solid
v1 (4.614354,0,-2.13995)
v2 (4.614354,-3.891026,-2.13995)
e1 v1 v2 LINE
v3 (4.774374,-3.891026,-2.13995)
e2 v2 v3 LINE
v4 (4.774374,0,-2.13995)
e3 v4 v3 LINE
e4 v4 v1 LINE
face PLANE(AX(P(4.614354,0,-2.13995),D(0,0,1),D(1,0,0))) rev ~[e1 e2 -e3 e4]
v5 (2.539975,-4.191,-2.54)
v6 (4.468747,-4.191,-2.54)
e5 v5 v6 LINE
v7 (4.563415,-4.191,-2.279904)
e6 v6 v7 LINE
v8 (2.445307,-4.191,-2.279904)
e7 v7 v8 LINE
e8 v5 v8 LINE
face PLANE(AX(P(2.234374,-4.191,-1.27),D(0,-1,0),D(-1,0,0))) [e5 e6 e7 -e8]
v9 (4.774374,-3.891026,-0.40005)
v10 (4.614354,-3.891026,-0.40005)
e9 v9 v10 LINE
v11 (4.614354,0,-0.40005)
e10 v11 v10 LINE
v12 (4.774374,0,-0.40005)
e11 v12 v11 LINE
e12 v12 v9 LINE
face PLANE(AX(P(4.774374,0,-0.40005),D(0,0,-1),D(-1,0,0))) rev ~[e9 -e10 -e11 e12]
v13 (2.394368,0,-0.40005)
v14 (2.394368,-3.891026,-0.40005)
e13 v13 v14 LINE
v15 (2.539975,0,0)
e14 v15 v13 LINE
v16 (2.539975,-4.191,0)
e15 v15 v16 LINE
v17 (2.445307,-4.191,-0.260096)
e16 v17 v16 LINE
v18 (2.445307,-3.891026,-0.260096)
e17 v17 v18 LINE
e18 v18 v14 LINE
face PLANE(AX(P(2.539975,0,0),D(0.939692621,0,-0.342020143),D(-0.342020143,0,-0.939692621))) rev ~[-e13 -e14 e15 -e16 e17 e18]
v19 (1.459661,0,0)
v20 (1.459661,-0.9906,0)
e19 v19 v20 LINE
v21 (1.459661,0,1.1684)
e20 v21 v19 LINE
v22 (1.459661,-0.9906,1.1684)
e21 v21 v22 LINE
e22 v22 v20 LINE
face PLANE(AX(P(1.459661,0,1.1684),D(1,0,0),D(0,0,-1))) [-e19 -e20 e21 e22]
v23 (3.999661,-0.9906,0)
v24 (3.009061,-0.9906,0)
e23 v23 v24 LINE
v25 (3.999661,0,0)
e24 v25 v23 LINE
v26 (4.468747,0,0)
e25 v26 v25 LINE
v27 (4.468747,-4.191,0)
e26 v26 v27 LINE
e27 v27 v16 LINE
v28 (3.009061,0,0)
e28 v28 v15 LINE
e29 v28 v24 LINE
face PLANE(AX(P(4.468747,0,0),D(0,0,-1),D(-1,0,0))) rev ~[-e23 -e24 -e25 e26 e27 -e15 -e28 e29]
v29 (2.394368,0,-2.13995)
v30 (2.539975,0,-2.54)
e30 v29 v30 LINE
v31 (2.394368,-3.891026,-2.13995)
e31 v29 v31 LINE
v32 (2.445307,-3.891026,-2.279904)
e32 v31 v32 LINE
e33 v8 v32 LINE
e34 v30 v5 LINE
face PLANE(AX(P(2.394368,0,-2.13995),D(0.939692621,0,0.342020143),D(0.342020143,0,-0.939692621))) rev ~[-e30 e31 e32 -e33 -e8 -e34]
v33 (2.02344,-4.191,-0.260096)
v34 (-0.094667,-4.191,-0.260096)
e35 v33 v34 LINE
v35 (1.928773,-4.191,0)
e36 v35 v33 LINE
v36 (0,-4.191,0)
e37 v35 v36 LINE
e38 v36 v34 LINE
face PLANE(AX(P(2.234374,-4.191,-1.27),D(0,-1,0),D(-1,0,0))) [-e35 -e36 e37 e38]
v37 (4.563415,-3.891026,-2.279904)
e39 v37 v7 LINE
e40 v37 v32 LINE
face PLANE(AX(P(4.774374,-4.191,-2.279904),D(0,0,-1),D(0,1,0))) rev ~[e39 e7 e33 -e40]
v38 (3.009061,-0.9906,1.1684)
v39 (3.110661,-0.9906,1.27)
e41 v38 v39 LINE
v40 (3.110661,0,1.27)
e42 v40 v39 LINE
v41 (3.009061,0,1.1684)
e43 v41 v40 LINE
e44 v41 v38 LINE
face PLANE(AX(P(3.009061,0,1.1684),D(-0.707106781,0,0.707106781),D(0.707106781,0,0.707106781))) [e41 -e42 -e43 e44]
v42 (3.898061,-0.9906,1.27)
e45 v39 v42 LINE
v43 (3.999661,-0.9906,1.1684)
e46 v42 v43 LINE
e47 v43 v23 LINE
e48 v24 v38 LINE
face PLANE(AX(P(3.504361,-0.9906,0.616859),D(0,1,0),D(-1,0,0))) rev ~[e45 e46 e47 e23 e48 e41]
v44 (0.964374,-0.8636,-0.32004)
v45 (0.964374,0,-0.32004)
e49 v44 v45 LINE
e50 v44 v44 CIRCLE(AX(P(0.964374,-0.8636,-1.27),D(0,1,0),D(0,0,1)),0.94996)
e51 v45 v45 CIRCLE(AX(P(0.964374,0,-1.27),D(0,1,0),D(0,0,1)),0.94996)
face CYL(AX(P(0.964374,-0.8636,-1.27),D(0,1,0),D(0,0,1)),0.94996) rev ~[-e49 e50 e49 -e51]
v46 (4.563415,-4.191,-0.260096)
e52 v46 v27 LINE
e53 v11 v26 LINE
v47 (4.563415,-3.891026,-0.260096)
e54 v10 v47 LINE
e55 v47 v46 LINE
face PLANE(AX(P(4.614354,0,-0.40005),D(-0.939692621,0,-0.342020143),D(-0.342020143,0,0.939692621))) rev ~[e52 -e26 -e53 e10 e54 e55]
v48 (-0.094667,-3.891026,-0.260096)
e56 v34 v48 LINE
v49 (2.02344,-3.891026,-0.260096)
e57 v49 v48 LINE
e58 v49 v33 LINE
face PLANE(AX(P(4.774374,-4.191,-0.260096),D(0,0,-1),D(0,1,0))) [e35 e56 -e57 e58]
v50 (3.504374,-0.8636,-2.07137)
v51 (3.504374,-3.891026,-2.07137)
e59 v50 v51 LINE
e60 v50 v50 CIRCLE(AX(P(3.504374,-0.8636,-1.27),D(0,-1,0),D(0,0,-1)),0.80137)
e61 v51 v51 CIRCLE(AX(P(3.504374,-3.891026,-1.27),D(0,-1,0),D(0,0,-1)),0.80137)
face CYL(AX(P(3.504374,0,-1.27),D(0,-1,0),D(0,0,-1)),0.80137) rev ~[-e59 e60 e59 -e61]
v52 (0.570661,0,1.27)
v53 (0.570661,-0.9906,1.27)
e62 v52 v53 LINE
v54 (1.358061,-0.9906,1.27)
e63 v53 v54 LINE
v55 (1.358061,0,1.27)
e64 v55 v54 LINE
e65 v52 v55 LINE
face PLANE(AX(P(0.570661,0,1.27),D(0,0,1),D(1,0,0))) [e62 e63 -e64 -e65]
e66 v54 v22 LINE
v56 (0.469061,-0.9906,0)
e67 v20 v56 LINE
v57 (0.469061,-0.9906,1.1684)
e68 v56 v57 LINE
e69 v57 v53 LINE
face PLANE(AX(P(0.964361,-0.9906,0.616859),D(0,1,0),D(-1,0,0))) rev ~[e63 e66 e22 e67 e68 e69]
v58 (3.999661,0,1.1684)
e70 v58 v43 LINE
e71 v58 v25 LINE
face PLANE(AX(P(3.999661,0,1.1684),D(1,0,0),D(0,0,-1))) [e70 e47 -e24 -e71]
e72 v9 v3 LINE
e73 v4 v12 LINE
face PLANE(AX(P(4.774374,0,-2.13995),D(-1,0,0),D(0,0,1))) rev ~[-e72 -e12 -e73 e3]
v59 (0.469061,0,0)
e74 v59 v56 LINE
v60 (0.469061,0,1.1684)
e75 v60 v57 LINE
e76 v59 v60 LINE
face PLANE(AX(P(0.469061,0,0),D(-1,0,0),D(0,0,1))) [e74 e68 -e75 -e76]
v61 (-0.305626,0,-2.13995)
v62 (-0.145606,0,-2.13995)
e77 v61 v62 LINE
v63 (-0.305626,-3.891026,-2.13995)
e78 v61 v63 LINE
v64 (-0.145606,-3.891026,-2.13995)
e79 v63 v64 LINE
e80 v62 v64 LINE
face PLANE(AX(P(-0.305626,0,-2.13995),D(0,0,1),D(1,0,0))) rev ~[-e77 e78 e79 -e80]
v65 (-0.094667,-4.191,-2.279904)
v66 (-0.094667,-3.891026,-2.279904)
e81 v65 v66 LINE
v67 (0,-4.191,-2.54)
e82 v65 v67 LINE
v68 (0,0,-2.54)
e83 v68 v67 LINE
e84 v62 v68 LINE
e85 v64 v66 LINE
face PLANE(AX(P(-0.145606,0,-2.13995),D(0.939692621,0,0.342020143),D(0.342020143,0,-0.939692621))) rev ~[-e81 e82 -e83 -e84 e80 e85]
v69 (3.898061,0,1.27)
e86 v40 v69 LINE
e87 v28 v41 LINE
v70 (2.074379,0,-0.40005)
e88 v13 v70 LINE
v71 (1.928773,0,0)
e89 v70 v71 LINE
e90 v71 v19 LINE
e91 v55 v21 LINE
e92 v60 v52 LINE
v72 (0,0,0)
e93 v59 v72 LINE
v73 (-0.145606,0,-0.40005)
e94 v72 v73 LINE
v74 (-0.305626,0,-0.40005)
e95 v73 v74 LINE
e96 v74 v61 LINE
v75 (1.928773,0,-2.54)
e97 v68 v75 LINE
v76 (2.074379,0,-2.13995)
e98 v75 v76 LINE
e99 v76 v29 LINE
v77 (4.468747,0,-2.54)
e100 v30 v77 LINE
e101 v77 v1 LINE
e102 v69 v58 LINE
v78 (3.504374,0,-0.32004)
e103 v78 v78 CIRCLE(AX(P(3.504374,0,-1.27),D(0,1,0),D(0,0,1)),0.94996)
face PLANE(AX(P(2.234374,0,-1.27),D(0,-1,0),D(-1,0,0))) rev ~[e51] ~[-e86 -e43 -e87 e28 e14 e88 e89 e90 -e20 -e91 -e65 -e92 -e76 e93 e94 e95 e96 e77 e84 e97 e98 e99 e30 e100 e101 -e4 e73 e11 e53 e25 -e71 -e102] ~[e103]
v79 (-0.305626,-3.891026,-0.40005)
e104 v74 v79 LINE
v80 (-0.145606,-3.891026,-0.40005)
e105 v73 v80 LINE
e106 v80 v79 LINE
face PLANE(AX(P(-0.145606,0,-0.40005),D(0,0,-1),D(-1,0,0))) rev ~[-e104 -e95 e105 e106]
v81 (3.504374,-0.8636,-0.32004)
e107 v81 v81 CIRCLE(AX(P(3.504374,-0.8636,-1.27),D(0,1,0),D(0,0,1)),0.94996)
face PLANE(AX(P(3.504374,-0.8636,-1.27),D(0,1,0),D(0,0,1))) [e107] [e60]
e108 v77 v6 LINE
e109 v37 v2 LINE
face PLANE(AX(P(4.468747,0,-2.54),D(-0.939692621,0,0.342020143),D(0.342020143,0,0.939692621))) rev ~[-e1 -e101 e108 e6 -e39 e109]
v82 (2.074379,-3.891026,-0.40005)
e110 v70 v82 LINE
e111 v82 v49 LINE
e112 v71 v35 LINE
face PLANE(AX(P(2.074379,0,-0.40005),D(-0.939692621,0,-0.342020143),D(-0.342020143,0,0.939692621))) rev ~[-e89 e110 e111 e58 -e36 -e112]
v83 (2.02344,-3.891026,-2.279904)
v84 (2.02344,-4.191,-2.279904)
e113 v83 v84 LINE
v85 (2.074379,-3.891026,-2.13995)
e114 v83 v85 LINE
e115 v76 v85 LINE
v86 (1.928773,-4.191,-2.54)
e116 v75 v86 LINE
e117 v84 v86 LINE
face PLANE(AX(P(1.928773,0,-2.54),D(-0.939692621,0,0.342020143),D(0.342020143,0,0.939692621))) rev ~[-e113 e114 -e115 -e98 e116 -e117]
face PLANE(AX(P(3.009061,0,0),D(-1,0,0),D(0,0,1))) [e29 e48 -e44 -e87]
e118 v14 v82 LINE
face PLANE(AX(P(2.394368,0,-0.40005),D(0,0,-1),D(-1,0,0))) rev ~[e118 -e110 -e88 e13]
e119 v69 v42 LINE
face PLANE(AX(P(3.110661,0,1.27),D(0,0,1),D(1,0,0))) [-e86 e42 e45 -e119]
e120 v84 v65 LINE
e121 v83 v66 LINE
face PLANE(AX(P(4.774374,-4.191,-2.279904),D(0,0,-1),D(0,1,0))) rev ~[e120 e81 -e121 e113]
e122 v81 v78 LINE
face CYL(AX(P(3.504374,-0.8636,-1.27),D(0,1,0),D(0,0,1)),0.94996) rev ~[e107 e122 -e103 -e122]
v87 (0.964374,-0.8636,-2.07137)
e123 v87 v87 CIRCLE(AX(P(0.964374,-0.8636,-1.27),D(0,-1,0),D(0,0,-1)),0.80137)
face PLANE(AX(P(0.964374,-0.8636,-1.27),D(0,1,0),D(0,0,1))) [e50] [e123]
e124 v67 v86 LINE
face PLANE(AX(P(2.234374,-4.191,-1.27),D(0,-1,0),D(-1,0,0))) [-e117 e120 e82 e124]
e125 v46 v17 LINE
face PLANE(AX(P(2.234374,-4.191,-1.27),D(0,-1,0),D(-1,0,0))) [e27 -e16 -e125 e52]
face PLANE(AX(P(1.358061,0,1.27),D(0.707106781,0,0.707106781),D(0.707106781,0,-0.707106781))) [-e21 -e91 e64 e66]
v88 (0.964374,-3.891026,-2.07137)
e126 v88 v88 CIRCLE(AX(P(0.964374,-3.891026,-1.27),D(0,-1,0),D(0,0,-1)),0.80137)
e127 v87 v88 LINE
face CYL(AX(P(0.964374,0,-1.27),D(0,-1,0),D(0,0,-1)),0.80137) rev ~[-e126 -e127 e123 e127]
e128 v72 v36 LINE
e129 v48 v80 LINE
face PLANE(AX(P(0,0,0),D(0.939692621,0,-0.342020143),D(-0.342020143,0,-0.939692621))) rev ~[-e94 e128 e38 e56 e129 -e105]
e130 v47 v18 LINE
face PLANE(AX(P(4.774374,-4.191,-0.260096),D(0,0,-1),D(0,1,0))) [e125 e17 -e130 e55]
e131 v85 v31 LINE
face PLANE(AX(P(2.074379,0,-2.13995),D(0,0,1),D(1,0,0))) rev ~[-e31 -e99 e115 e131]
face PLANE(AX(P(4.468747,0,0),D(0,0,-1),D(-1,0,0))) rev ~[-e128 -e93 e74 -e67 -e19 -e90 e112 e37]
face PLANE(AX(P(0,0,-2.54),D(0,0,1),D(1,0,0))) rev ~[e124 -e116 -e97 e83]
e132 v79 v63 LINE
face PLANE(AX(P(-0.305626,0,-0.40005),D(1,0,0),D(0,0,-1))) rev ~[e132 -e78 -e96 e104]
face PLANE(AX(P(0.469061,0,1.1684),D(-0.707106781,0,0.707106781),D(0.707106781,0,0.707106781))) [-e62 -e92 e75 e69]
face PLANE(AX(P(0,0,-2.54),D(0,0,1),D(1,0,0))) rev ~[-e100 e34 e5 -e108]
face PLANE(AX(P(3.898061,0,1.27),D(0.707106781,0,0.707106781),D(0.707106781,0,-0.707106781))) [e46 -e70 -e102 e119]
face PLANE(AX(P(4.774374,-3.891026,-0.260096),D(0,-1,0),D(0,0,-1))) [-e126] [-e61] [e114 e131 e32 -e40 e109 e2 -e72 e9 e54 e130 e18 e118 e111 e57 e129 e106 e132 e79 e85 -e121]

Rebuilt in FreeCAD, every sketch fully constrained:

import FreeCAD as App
import Part
import Sketcher
Q = App.Units.Quantity


def add_polygon(sketch, points):
    """Adds a closed chain of lines whose ends are joined by coincident constraints."""
    first, n = sketch.GeometryCount, len(points)
    for a, b in zip(points, points[1:] + points[:1]):
        sketch.addGeometry(Part.LineSegment(App.Vector(*a, 0), App.Vector(*b, 0)), False)
    for i in range(n):
        sketch.addConstraint(Sketcher.Constraint("Coincident", first + i, 2, first + (i + 1) % n, 1))

doc = App.newDocument("Part")
params = doc.addObject("Spreadsheet::Sheet", "Params")
for row, (alias, value) in enumerate([
    ("pad1_length", "0.165 in"),
    ("hole_diameter", "0.0631 in"),
    ("hole_cbore_diameter", "0.0748 in"),
    ("hole_cbore_depth", "0.034 in"),
    ("pocket1_length", "0.276 in"),
    ("linearpattern_pitch", "0.1 in"),
    ("linearpattern2_pitch", "0.1 in"),
    ("sketch5_width", "0.031 in"),
    ("sketch5_width2", "0.039 in"),
    ("sketch5_height", "0.046 in"),
    ("pad2_length", "0.039 in"),
    ("linearpattern3_pitch", "0.1 in"),
], start=1):
    params.set(f"A{row}", alias)
    params.set(f"B{row}", "=" + value)
    params.setAlias(f"B{row}", alias)

body = doc.addObject("PartDesign::Body", "Body")

sketch1 = doc.addObject("Sketcher::SketchObject", "Sketch")
body.addObject(sketch1)
sketch1.AttachmentSupport = (doc.XZ_Plane, [""])
sketch1.MapMode = "FlatFace"
add_polygon(sketch1, [(4.614354, -0.40005), (4.774374, -0.40005), (4.774374, -2.13995), (4.614354, -2.13995), (4.468747, -2.54), (0, -2.54), (-0.145606, -2.13995), (-0.305626, -2.13995), (-0.305626, -0.40005), (-0.145606, -0.40005), (0, 0), (4.468747, 0)])
sketch1.addConstraint(Sketcher.Constraint("Horizontal", 0))
sketch1.addConstraint(Sketcher.Constraint("Vertical", 1))
sketch1.addConstraint(Sketcher.Constraint("Horizontal", 2))
sketch1.addConstraint(Sketcher.Constraint("Horizontal", 4))
sketch1.addConstraint(Sketcher.Constraint("Horizontal", 6))
sketch1.addConstraint(Sketcher.Constraint("Vertical", 7))
sketch1.addConstraint(Sketcher.Constraint("Horizontal", 8))
sketch1.addConstraint(Sketcher.Constraint("Horizontal", 10))
sketch1.addConstraint(Sketcher.Constraint("Coincident", 9, 2, -1, 1))
sketch1.addConstraint(Sketcher.Constraint("PointOnObject", 4, 2, -2))
sketch1.addConstraint(Sketcher.Constraint("Parallel", 3, 9))
sketch1.addConstraint(Sketcher.Constraint("Parallel", 5, 11))
sketch1.addConstraint(Sketcher.Constraint("Horizontal", 2, 2, 5, 2))
sketch1.addConstraint(Sketcher.Constraint("Horizontal", 0, 2, 7, 2))
sketch1.addConstraint(Sketcher.Constraint("Vertical", 5, 2, 8, 2))
sketch1.addConstraint(Sketcher.Constraint("Vertical", 3, 2, 10, 2))
sketch1.addConstraint(Sketcher.Constraint("Vertical", 2, 2, 11, 2))
sketch1.addConstraint(Sketcher.Constraint("Equal", 2, 6))
sketch1.addConstraint(Sketcher.Constraint("Angle", 3, Q("-110 deg")))
sketch1.addConstraint(Sketcher.Constraint("DistanceY", 3, 2, -1, 1, Q("0.1 in")))
sketch1.addConstraint(Sketcher.Constraint("DistanceX", 6, 2, 1, 2, Q("0.2 in")))
sketch1.addConstraint(Sketcher.Constraint("DistanceX", 0, 1, 0, 2, Q("0.0063 in")))
sketch1.addConstraint(Sketcher.Constraint("DistanceY", 1, 2, 1, 1, Q("0.0685 in")))
pad1 = doc.addObject("PartDesign::Pad", "Pad")
body.addObject(pad1)
pad1.Profile = sketch1
pad1.setExpression("Length", "Params.pad1_length")

sketch2 = doc.addObject("Sketcher::SketchObject", "Sketch001")
body.addObject(sketch2)
sketch2.AttachmentSupport = (doc.XZ_Plane, [""])
sketch2.MapMode = "FlatFace"
sketch2.addGeometry(Part.Circle(App.Vector(0.964374, -1.27, 0), App.Vector(0, 0, 1), 0.80137), False)
sketch2.addConstraint(Sketcher.Constraint("Diameter", 0, Q("0.0631 in")))
sketch2.addConstraint(Sketcher.Constraint("DistanceY", 0, 3, -1, 1, Q("0.05 in")))
sketch2.addConstraint(Sketcher.Constraint("DistanceX", -1, 1, 0, 3, Q("0.964374 mm")))
doc.recompute()
hole = doc.addObject("PartDesign::Hole", "Hole")
body.addObject(hole)
hole.Profile = sketch2
hole.ThreadType = "None"
hole.setExpression("Diameter", "Params.hole_diameter")
hole.DepthType = "ThroughAll"
hole.HoleCutType = "Counterbore"
hole.setExpression("HoleCutDiameter", "Params.hole_cbore_diameter")
hole.setExpression("HoleCutDepth", "Params.hole_cbore_depth")
hole.Reversed = True

sketch3 = doc.addObject("Sketcher::SketchObject", "Sketch002")
body.addObject(sketch3)
sketch3.AttachmentSupport = (doc.XZ_Plane, [""])
sketch3.MapMode = "FlatFace"
add_polygon(sketch3, [(1.928773, 0), (2.539975, 0), (2.394368, -0.40005), (2.074379, -0.40005)])
add_polygon(sketch3, [(2.074379, -2.13995), (2.394368, -2.13995), (2.539975, -2.54), (1.928773, -2.54)])
sketch3.addConstraint(Sketcher.Constraint("Horizontal", 0))
sketch3.addConstraint(Sketcher.Constraint("Horizontal", 2))
sketch3.addConstraint(Sketcher.Constraint("Horizontal", 4))
sketch3.addConstraint(Sketcher.Constraint("Horizontal", 6))
sketch3.addConstraint(Sketcher.Constraint("PointOnObject", 0, 2, -1))
sketch3.addConstraint(Sketcher.Constraint("Parallel", 3, 5))
sketch3.addConstraint(Sketcher.Constraint("Parallel", 1, 7))
sketch3.addConstraint(Sketcher.Constraint("Vertical", 1, 2, 4, 2))
sketch3.addConstraint(Sketcher.Constraint("Vertical", 0, 2, 5, 2))
sketch3.addConstraint(Sketcher.Constraint("Vertical", 3, 2, 6, 2))
sketch3.addConstraint(Sketcher.Constraint("Vertical", 2, 2, 7, 2))
sketch3.addConstraint(Sketcher.Constraint("Angle", 1, Q("-110 deg")))
sketch3.addConstraint(Sketcher.Constraint("DistanceY", 5, 2, -1, 1, Q("0.1 in")))
sketch3.addConstraint(Sketcher.Constraint("DistanceX", 0, 1, 0, 2, Q("0.611202 mm")))
sketch3.addConstraint(Sketcher.Constraint("DistanceY", 4, 2, 1, 2, Q("0.0685 in")))
sketch3.addConstraint(Sketcher.Constraint("DistanceX", -1, 1, 1, 2, Q("2.394368 mm")))
pocket1 = doc.addObject("PartDesign::Pocket", "Pocket")
body.addObject(pocket1)
pocket1.Profile = sketch3
pocket1.setExpression("Length", "Params.pocket1_length")
pocket1.Reversed = True
doc.recompute()

linearpattern = doc.addObject("PartDesign::LinearPattern", "LinearPattern")
body.addObject(linearpattern)
linearpattern.Originals = [hole]
linearpattern.Direction = (doc.X_Axis, [""])
linearpattern.Mode = "offset"
linearpattern.setExpression("Offset", "Params.linearpattern_pitch")
linearpattern.Occurrences = 2
body.Tip = linearpattern
doc.recompute()

linearpattern2 = doc.addObject("PartDesign::LinearPattern", "LinearPattern001")
body.addObject(linearpattern2)
linearpattern2.Originals = [pocket1]
linearpattern2.Direction = (doc.X_Axis, [""])
linearpattern2.Mode = "offset"
linearpattern2.setExpression("Offset", "Params.linearpattern2_pitch")
linearpattern2.Occurrences = 35
body.Tip = linearpattern2

sketch4 = doc.addObject("Sketcher::SketchObject", "Sketch003")
body.addObject(sketch4)
sketch4.AttachmentSupport = (doc.YZ_Plane, [""])
sketch4.MapMode = "FlatFace"
sketch4.AttachmentOffset = App.Placement(App.Vector(0, 0, 4.774374), App.Rotation())
add_polygon(sketch4, [(-3.891026, -0.260096), (-4.191, -0.260096), (-4.191, -2.279904), (-3.891026, -2.279904)])
sketch4.addConstraint(Sketcher.Constraint("Horizontal", 0))
sketch4.addConstraint(Sketcher.Constraint("Vertical", 1))
sketch4.addConstraint(Sketcher.Constraint("Horizontal", 2))
sketch4.addConstraint(Sketcher.Constraint("Vertical", 3))
sketch4.addConstraint(Sketcher.Constraint("DistanceX", 0, 2, -1, 1, Q("0.165 in")))
sketch4.addConstraint(Sketcher.Constraint("DistanceY", 1, 2, 1, 1, Q("2.019808 mm")))
sketch4.addConstraint(Sketcher.Constraint("DistanceX", 0, 2, 0, 1, Q("0.299974 mm")))
sketch4.addConstraint(Sketcher.Constraint("DistanceY", 0, 2, -1, 1, Q("0.260096 mm")))
pocket2 = doc.addObject("PartDesign::Pocket", "Pocket001")
body.addObject(pocket2)
pocket2.Profile = sketch4
pocket2.Type = "ThroughAll"

sketch5 = doc.addObject("Sketcher::SketchObject", "Sketch004")
body.addObject(sketch5)
sketch5.AttachmentSupport = (doc.XZ_Plane, [""])
sketch5.MapMode = "FlatFace"
add_polygon(sketch5, [(0.469061, 1.1684), (0.570661, 1.27), (1.358061, 1.27), (1.459661, 1.1684), (1.459661, 0), (0.469061, 0)])
sketch5.addConstraint(Sketcher.Constraint("Horizontal", 1))
sketch5.addConstraint(Sketcher.Constraint("Vertical", 3))
sketch5.addConstraint(Sketcher.Constraint("Horizontal", 4))
sketch5.addConstraint(Sketcher.Constraint("Vertical", 5))
sketch5.addConstraint(Sketcher.Constraint("PointOnObject", 3, 2, -1))
sketch5.addConstraint(Sketcher.Constraint("Perpendicular", 0, 2))
sketch5.addConstraint(Sketcher.Constraint("Horizontal", 2, 2, 5, 2))
sketch5.addConstraint(Sketcher.Constraint("Equal", 0, 2))
sketch5.addConstraint(Sketcher.Constraint("DistanceX", 1, 1, 1, 2, Q("0.031 in")))
sketch5.addConstraint(Sketcher.Constraint("DistanceX", 4, 2, 4, 1, Q("0.039 in")))
sketch5.addConstraint(Sketcher.Constraint("DistanceY", 3, 2, 3, 1, Q("0.046 in")))
sketch5.addConstraint(Sketcher.Constraint("DistanceX", -1, 1, 0, 2, Q("0.570661 mm")))
sketch5.setExpression("Constraints[14]", "Params.sketch5_width")
sketch5.setExpression("Constraints[15]", "Params.sketch5_width2")
sketch5.setExpression("Constraints[16]", "Params.sketch5_height")
pad2 = doc.addObject("PartDesign::Pad", "Pad001")
body.addObject(pad2)
pad2.Profile = sketch5
pad2.setExpression("Length", "Params.pad2_length")
doc.recompute()

linearpattern3 = doc.addObject("PartDesign::LinearPattern", "LinearPattern002")
body.addObject(linearpattern3)
linearpattern3.Originals = [pad2]
linearpattern3.Direction = (doc.X_Axis, [""])
linearpattern3.Mode = "offset"
linearpattern3.setExpression("Offset", "Params.linearpattern3_pitch")
linearpattern3.Occurrences = 2
body.Tip = linearpattern3

doc.recompute()
